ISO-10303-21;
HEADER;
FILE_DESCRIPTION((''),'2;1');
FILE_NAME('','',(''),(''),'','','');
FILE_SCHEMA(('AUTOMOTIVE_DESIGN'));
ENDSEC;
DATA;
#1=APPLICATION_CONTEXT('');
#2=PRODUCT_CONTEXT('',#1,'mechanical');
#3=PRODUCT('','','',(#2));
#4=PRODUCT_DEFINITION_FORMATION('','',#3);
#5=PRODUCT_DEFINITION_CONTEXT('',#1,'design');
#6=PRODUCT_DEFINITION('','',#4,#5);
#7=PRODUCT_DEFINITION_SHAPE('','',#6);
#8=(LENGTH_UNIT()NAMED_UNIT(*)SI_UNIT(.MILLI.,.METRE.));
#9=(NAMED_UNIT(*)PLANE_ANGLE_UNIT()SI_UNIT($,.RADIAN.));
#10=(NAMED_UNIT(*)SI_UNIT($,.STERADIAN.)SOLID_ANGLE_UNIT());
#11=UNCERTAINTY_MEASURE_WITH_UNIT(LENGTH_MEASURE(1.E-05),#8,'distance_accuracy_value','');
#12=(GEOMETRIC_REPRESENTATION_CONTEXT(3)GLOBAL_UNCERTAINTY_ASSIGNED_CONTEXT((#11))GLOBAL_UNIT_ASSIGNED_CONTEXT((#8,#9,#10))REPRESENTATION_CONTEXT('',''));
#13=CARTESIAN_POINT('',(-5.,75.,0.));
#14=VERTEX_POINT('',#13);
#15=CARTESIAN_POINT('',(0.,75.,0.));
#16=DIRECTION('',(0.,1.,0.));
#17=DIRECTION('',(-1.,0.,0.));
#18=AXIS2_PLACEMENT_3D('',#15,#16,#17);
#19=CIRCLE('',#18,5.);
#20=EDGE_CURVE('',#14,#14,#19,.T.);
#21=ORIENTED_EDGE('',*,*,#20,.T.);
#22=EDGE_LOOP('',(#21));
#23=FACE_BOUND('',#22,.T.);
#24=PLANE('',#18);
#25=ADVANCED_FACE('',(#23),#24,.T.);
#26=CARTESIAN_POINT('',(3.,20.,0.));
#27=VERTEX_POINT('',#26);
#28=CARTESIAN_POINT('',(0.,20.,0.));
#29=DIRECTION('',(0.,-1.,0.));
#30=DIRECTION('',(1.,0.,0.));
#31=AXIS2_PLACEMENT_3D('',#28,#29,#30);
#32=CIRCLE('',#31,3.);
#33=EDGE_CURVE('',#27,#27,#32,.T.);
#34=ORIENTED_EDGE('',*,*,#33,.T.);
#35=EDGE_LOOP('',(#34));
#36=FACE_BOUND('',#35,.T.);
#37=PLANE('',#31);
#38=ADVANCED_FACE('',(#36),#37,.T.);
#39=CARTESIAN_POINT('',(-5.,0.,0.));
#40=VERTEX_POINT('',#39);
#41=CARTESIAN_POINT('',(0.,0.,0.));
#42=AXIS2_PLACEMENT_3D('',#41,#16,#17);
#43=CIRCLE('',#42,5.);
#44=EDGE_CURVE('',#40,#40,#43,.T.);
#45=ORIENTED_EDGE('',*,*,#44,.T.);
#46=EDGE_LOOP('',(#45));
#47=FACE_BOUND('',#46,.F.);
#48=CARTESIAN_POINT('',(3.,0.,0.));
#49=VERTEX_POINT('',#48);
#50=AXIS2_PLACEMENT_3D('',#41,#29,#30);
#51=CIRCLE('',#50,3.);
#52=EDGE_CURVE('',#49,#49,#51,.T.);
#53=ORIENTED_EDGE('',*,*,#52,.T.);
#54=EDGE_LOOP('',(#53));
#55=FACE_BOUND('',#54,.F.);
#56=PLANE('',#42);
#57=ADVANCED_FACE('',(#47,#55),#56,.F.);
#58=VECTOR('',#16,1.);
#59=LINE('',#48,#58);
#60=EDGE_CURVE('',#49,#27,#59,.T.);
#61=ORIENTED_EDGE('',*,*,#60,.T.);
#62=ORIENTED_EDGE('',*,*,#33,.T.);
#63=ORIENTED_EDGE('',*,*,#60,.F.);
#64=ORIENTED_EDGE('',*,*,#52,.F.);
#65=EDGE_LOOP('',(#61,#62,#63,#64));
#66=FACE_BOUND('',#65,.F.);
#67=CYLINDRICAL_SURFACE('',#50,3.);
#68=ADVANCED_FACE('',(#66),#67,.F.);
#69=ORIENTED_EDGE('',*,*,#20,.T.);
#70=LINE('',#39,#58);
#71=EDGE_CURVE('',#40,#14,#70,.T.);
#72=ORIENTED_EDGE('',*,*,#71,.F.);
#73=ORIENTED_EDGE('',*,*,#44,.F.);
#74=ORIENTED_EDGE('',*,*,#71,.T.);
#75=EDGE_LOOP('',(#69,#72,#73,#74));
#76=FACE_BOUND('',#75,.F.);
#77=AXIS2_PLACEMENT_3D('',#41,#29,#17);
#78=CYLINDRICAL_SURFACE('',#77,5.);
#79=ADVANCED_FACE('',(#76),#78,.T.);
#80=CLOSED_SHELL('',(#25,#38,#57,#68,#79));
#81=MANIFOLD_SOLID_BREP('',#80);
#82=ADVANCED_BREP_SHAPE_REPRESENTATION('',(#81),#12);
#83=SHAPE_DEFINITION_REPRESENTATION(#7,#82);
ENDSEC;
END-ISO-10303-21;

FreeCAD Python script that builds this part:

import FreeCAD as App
import Part
import Sketcher

V = App.Vector
Q = App.Units.Quantity

doc = App.newDocument("Part")
body = doc.addObject("PartDesign::Body", "Body")

# Sketch on XZ plane
sketch1 = body.newObject("Sketcher::SketchObject", "Sketch")
sketch1.AttachmentSupport = (doc.getObject("XZ_Plane"), [""])
sketch1.MapMode = "FlatFace"
sketch1.addGeometry(Part.Circle(V(0, 0, 0), V(0, 0, 1), 5), False)
sketch1.addConstraint([
    Sketcher.Constraint("Coincident", 0, 3, -1, 1),
    Sketcher.Constraint("Diameter", 0, Q("10 mm")),
])
pad1 = body.newObject("PartDesign::Pad", "Pad")
pad1.Profile = sketch1
pad1.Length = 75
pad1.Reversed = True

# Sketch on XZ plane
sketch2 = body.newObject("Sketcher::SketchObject", "Sketch001")
sketch2.AttachmentSupport = (doc.getObject("XZ_Plane"), [""])
sketch2.MapMode = "FlatFace"
sketch2.addGeometry(Part.Circle(V(0, 0, 0), V(0, 0, 1), 3), False)
sketch2.addConstraint([
    Sketcher.Constraint("Coincident", 0, 3, -1, 1),
    Sketcher.Constraint("Diameter", 0, Q("6 mm")),
])
pocket1 = body.newObject("PartDesign::Pocket", "Pocket")
pocket1.Profile = sketch2
pocket1.Length = 20

doc.recompute()
